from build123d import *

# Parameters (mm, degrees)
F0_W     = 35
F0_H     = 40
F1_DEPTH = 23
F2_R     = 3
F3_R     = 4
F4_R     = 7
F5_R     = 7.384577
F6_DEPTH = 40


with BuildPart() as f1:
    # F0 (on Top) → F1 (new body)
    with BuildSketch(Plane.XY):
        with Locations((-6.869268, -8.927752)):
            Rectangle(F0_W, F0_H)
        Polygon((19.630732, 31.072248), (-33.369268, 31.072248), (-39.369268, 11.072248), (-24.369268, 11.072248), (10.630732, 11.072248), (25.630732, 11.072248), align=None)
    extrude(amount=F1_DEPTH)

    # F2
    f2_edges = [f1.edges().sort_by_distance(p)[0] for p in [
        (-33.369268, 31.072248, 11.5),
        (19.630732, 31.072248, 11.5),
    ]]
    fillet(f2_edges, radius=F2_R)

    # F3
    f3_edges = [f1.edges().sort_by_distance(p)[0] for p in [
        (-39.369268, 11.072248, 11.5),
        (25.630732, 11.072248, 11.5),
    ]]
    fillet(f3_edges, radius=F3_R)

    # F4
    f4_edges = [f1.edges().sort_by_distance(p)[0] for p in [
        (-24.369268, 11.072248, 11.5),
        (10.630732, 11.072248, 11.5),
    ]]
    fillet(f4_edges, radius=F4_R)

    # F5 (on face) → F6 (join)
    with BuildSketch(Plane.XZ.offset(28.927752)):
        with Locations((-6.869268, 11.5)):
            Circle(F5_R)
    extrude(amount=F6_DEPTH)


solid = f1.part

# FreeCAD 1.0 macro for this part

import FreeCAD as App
import Part
import Sketcher
from FreeCAD import Vector
Q = App.Units.Quantity


def edges_at(feature, points):
    """Names of the edges that pass closest to the given points."""
    edges = feature.Shape.Edges
    near = lambda p: min(range(len(edges)), key=lambda i: edges[i].distToShape(Part.Vertex(*p))[0])
    return sorted({f"Edge{near(p) + 1}" for p in points})

doc = App.newDocument("Part")
body = doc.addObject("PartDesign::Body", "Body")

# Sketch on XY plane
sketch1 = doc.addObject("Sketcher::SketchObject", "Sketch")
body.addObject(sketch1)
sketch1.AttachmentSupport = (doc.XY_Plane, [""])
sketch1.MapMode = "FlatFace"
sketch1.addGeometry([
    Part.LineSegment(Vector(-24, 11, 0), Vector(-24, -29, 0)),  # 0
    Part.LineSegment(Vector(-24, -29, 0), Vector(11, -29, 0)),  # 1
    Part.LineSegment(Vector(11, -29, 0), Vector(11, 11, 0)),  # 2
    Part.LineSegment(Vector(11, 11, 0), Vector(26, 11, 0)),  # 3
    Part.LineSegment(Vector(26, 11, 0), Vector(20, 31, 0)),  # 4
    Part.LineSegment(Vector(20, 31, 0), Vector(-33, 31, 0)),  # 5
    Part.LineSegment(Vector(-33, 31, 0), Vector(-39, 11, 0)),  # 6
    Part.LineSegment(Vector(-39, 11, 0), Vector(-24, 11, 0)),  # 7
], False)
sketch1.addConstraint([
    Sketcher.Constraint("Coincident", 0, 2, 1, 1),
    Sketcher.Constraint("Coincident", 1, 2, 2, 1),
    Sketcher.Constraint("Coincident", 2, 2, 3, 1),
    Sketcher.Constraint("Coincident", 3, 2, 4, 1),
    Sketcher.Constraint("Coincident", 4, 2, 5, 1),
    Sketcher.Constraint("Coincident", 5, 2, 6, 1),
    Sketcher.Constraint("Coincident", 6, 2, 7, 1),
    Sketcher.Constraint("Coincident", 7, 2, 0, 1),
    Sketcher.Constraint("Vertical", 0),
    Sketcher.Constraint("Horizontal", 1),
    Sketcher.Constraint("Vertical", 2),
    Sketcher.Constraint("Horizontal", 3),
    Sketcher.Constraint("Horizontal", 5),
    Sketcher.Constraint("Horizontal", 7),
    Sketcher.Constraint("Horizontal", 3, 2, 6, 2),
    Sketcher.Constraint("Equal", 3, 7),
    Sketcher.Constraint("Equal", 4, 6),
    Sketcher.Constraint("DistanceX", 1, 1, 1, 2, Q("35 mm")),
    Sketcher.Constraint("DistanceX", 3, 1, 3, 2, Q("15 mm")),
    Sketcher.Constraint("DistanceX", 5, 2, 5, 1, Q("53 mm")),
    Sketcher.Constraint("DistanceY", 0, 2, 0, 1, Q("40 mm")),
    Sketcher.Constraint("DistanceY", 3, 2, 4, 2, Q("20 mm")),
    Sketcher.Constraint("DistanceX", 0, 2, -1, 1, Q("24.369268 mm")),
    Sketcher.Constraint("DistanceY", 0, 2, -1, 1, Q("28.927752 mm")),
])
pad1 = doc.addObject("PartDesign::Pad", "Pad")
body.addObject(pad1)
pad1.Profile = sketch1
pad1.Length = 23
doc.recompute()

fillet = doc.addObject("PartDesign::Fillet", "Fillet")
body.addObject(fillet)
fillet.Base = (pad1, edges_at(pad1, [(-33.369, 31.072, 11.5), (19.631, 31.072, 11.5)]))
fillet.Radius = 3
doc.recompute()

fillet2 = doc.addObject("PartDesign::Fillet", "Fillet001")
body.addObject(fillet2)
fillet2.Base = (fillet, edges_at(fillet, [(-39.369, 11.072, 11.5), (25.631, 11.072, 11.5)]))
fillet2.Radius = 4
doc.recompute()

fillet3 = doc.addObject("PartDesign::Fillet", "Fillet002")
body.addObject(fillet3)
fillet3.Base = (fillet2, edges_at(fillet2, [(-24.369, 11.072, 11.5), (10.631, 11.072, 11.5)]))
fillet3.Radius = 7

# Sketch on XZ plane
sketch2 = doc.addObject("Sketcher::SketchObject", "Sketch001")
body.addObject(sketch2)
sketch2.AttachmentSupport = (doc.XZ_Plane, [""])
sketch2.MapMode = "FlatFace"
sketch2.AttachmentOffset = App.Placement(Vector(0, 0, 28.927752), App.Rotation())
sketch2.addGeometry(Part.Circle(Vector(-7, 12, 0), Vector(0, 0, 1), 7), False)
sketch2.addConstraint([
    Sketcher.Constraint("DistanceY", -1, 1, 0, 3, Q("11.5 mm")),
    Sketcher.Constraint("Diameter", 0, Q("14.769154 mm")),
    Sketcher.Constraint("DistanceX", 0, 3, -1, 1, Q("6.869268 mm")),
])
pad2 = doc.addObject("PartDesign::Pad", "Pad001")
body.addObject(pad2)
pad2.Profile = sketch2
pad2.Length = 40

doc.recompute()
